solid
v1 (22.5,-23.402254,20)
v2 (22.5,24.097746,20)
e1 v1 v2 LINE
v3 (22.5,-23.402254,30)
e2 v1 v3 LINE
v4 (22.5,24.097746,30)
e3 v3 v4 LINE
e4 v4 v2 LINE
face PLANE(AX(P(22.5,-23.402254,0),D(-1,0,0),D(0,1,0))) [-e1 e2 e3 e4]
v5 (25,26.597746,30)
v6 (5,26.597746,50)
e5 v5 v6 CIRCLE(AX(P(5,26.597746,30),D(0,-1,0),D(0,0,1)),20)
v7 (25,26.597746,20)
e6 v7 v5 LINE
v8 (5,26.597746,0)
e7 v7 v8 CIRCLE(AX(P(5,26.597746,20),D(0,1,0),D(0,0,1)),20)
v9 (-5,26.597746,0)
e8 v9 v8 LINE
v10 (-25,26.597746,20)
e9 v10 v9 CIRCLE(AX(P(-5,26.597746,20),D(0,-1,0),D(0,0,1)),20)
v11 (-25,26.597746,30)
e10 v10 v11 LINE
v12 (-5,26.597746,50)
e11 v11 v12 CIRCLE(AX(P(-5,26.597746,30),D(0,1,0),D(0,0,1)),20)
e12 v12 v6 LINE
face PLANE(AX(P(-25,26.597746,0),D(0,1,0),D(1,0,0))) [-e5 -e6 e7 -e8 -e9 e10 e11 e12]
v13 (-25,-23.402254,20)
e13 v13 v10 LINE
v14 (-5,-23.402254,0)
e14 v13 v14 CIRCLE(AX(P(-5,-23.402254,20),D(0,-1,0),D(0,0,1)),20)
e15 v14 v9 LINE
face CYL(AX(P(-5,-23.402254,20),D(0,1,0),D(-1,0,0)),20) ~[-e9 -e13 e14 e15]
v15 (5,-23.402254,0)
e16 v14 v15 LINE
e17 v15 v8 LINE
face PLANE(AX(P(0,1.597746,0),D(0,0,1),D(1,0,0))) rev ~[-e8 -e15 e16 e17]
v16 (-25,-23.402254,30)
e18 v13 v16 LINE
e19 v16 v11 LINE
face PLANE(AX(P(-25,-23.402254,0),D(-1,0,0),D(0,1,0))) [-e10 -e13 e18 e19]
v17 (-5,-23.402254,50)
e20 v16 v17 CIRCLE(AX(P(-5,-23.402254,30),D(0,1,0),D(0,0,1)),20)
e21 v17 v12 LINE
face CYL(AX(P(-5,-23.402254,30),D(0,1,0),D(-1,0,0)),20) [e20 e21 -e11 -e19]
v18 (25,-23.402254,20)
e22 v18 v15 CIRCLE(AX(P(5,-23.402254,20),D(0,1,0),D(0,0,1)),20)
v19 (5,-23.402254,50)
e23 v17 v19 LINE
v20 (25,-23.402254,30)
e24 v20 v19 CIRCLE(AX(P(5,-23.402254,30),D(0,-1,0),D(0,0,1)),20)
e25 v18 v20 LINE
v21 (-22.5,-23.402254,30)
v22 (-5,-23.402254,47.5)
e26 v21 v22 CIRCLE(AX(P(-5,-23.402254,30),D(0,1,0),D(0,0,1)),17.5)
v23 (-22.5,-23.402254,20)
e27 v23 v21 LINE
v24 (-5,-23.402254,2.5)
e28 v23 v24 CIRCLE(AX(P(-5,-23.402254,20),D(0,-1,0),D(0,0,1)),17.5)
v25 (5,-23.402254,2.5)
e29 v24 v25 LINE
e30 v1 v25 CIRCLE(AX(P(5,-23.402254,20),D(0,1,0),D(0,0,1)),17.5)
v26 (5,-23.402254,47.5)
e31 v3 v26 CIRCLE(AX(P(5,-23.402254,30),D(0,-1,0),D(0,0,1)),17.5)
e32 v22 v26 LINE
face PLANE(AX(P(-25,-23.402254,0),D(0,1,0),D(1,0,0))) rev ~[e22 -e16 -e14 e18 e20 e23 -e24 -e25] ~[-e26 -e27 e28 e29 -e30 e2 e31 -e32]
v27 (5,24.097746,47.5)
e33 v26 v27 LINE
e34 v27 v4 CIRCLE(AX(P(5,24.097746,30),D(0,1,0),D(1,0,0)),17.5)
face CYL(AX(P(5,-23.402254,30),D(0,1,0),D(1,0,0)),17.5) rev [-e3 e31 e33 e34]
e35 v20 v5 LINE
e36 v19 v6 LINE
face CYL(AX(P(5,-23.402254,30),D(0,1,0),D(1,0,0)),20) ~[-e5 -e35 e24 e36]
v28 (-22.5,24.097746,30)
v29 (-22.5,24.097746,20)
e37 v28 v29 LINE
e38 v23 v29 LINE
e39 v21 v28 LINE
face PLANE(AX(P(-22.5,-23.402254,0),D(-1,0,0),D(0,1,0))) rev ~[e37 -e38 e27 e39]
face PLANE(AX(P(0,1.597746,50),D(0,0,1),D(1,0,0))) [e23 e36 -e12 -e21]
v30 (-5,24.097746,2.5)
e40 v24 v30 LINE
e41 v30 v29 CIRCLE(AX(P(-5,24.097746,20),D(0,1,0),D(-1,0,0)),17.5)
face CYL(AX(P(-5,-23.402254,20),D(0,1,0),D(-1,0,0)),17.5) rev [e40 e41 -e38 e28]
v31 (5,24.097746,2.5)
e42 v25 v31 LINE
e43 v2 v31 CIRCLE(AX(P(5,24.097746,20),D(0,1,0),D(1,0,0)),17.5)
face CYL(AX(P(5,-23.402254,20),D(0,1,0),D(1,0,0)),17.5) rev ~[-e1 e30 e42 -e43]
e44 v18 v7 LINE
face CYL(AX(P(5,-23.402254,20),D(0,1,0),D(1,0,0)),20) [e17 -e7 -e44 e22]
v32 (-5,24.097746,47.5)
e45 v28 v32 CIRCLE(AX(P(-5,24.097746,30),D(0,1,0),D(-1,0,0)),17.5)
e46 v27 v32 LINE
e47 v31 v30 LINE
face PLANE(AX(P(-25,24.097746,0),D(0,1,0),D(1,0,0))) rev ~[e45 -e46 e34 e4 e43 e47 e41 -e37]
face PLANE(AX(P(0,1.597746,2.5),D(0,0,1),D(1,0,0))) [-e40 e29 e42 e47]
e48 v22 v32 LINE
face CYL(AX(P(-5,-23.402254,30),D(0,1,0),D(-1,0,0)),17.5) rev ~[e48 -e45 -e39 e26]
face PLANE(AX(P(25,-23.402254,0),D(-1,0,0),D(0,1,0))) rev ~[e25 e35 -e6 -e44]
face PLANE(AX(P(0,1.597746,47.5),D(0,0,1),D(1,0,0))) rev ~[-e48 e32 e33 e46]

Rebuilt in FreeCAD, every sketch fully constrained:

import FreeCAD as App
import Part
import Sketcher
from FreeCAD import Vector


def edges_at(feature, points):
    """Names of the edges that pass closest to the given points."""
    edges = feature.Shape.Edges
    near = lambda p: min(range(len(edges)), key=lambda i: edges[i].distToShape(Part.Vertex(*p))[0])
    return sorted({f"Edge{near(p) + 1}" for p in points})


def faces_at(feature, points):
    """Names of the faces that lie closest to the given points."""
    faces = feature.Shape.Faces
    near = lambda p: min(range(len(faces)), key=lambda i: faces[i].distToShape(Part.Vertex(*p))[0])
    return sorted({f"Face{near(p) + 1}" for p in points})

doc = App.newDocument("Part")
body = doc.addObject("PartDesign::Body", "Body")

# Sketch on XY plane
sketch1 = body.newObject("Sketcher::SketchObject", "Sketch")
sketch1.AttachmentSupport = (doc.getObject("XY_Plane"), [""])
sketch1.MapMode = "FlatFace"
sketch1.addGeometry([
    Part.LineSegment(Vector(-25, 27, 0), Vector(-25, -23, 0)),
    Part.LineSegment(Vector(-25, -23, 0), Vector(25, -23, 0)),
    Part.LineSegment(Vector(25, -23, 0), Vector(25, 27, 0)),
    Part.LineSegment(Vector(25, 27, 0), Vector(-25, 27, 0)),
], False)
sketch1.addConstraint([
    Sketcher.Constraint("Coincident", 0, 2, 1, 1),
    Sketcher.Constraint("Coincident", 1, 2, 2, 1),
    Sketcher.Constraint("Coincident", 2, 2, 3, 1),
    Sketcher.Constraint("Coincident", 3, 2, 0, 1),
    Sketcher.Constraint("Vertical", 0),
    Sketcher.Constraint("Horizontal", 1),
    Sketcher.Constraint("Vertical", 2),
    Sketcher.Constraint("Horizontal", 3),
    Sketcher.Constraint("Equal", 3, 0),
    Sketcher.Constraint("DistanceX", 1, 1, 1, 2, 50.0),
    Sketcher.Constraint("DistanceX", 0, 2, -1, 1, 25.0),
    Sketcher.Constraint("DistanceY", 0, 2, -1, 1, 23.402254),
])
pad1 = body.newObject("PartDesign::Pad", "Pad")
pad1.Profile = sketch1
pad1.Length = 50
doc.recompute()

fillet = body.newObject("PartDesign::Fillet", "Fillet")
fillet.Base = (pad1, edges_at(pad1, [
    (25, 1.598, 0),
    (-25, 1.598, 0),
    (25, 1.598, 50),
    (-25, 1.598, 50),
]))
fillet.Radius = 20
doc.recompute()

thickness = body.newObject("PartDesign::Thickness", "Thickness")
thickness.Base = (fillet, faces_at(fillet, [(0, -23.402, 25)]))
thickness.Value = 2.5
thickness.Reversed = True
thickness.Join = "Arc"

doc.recompute()
